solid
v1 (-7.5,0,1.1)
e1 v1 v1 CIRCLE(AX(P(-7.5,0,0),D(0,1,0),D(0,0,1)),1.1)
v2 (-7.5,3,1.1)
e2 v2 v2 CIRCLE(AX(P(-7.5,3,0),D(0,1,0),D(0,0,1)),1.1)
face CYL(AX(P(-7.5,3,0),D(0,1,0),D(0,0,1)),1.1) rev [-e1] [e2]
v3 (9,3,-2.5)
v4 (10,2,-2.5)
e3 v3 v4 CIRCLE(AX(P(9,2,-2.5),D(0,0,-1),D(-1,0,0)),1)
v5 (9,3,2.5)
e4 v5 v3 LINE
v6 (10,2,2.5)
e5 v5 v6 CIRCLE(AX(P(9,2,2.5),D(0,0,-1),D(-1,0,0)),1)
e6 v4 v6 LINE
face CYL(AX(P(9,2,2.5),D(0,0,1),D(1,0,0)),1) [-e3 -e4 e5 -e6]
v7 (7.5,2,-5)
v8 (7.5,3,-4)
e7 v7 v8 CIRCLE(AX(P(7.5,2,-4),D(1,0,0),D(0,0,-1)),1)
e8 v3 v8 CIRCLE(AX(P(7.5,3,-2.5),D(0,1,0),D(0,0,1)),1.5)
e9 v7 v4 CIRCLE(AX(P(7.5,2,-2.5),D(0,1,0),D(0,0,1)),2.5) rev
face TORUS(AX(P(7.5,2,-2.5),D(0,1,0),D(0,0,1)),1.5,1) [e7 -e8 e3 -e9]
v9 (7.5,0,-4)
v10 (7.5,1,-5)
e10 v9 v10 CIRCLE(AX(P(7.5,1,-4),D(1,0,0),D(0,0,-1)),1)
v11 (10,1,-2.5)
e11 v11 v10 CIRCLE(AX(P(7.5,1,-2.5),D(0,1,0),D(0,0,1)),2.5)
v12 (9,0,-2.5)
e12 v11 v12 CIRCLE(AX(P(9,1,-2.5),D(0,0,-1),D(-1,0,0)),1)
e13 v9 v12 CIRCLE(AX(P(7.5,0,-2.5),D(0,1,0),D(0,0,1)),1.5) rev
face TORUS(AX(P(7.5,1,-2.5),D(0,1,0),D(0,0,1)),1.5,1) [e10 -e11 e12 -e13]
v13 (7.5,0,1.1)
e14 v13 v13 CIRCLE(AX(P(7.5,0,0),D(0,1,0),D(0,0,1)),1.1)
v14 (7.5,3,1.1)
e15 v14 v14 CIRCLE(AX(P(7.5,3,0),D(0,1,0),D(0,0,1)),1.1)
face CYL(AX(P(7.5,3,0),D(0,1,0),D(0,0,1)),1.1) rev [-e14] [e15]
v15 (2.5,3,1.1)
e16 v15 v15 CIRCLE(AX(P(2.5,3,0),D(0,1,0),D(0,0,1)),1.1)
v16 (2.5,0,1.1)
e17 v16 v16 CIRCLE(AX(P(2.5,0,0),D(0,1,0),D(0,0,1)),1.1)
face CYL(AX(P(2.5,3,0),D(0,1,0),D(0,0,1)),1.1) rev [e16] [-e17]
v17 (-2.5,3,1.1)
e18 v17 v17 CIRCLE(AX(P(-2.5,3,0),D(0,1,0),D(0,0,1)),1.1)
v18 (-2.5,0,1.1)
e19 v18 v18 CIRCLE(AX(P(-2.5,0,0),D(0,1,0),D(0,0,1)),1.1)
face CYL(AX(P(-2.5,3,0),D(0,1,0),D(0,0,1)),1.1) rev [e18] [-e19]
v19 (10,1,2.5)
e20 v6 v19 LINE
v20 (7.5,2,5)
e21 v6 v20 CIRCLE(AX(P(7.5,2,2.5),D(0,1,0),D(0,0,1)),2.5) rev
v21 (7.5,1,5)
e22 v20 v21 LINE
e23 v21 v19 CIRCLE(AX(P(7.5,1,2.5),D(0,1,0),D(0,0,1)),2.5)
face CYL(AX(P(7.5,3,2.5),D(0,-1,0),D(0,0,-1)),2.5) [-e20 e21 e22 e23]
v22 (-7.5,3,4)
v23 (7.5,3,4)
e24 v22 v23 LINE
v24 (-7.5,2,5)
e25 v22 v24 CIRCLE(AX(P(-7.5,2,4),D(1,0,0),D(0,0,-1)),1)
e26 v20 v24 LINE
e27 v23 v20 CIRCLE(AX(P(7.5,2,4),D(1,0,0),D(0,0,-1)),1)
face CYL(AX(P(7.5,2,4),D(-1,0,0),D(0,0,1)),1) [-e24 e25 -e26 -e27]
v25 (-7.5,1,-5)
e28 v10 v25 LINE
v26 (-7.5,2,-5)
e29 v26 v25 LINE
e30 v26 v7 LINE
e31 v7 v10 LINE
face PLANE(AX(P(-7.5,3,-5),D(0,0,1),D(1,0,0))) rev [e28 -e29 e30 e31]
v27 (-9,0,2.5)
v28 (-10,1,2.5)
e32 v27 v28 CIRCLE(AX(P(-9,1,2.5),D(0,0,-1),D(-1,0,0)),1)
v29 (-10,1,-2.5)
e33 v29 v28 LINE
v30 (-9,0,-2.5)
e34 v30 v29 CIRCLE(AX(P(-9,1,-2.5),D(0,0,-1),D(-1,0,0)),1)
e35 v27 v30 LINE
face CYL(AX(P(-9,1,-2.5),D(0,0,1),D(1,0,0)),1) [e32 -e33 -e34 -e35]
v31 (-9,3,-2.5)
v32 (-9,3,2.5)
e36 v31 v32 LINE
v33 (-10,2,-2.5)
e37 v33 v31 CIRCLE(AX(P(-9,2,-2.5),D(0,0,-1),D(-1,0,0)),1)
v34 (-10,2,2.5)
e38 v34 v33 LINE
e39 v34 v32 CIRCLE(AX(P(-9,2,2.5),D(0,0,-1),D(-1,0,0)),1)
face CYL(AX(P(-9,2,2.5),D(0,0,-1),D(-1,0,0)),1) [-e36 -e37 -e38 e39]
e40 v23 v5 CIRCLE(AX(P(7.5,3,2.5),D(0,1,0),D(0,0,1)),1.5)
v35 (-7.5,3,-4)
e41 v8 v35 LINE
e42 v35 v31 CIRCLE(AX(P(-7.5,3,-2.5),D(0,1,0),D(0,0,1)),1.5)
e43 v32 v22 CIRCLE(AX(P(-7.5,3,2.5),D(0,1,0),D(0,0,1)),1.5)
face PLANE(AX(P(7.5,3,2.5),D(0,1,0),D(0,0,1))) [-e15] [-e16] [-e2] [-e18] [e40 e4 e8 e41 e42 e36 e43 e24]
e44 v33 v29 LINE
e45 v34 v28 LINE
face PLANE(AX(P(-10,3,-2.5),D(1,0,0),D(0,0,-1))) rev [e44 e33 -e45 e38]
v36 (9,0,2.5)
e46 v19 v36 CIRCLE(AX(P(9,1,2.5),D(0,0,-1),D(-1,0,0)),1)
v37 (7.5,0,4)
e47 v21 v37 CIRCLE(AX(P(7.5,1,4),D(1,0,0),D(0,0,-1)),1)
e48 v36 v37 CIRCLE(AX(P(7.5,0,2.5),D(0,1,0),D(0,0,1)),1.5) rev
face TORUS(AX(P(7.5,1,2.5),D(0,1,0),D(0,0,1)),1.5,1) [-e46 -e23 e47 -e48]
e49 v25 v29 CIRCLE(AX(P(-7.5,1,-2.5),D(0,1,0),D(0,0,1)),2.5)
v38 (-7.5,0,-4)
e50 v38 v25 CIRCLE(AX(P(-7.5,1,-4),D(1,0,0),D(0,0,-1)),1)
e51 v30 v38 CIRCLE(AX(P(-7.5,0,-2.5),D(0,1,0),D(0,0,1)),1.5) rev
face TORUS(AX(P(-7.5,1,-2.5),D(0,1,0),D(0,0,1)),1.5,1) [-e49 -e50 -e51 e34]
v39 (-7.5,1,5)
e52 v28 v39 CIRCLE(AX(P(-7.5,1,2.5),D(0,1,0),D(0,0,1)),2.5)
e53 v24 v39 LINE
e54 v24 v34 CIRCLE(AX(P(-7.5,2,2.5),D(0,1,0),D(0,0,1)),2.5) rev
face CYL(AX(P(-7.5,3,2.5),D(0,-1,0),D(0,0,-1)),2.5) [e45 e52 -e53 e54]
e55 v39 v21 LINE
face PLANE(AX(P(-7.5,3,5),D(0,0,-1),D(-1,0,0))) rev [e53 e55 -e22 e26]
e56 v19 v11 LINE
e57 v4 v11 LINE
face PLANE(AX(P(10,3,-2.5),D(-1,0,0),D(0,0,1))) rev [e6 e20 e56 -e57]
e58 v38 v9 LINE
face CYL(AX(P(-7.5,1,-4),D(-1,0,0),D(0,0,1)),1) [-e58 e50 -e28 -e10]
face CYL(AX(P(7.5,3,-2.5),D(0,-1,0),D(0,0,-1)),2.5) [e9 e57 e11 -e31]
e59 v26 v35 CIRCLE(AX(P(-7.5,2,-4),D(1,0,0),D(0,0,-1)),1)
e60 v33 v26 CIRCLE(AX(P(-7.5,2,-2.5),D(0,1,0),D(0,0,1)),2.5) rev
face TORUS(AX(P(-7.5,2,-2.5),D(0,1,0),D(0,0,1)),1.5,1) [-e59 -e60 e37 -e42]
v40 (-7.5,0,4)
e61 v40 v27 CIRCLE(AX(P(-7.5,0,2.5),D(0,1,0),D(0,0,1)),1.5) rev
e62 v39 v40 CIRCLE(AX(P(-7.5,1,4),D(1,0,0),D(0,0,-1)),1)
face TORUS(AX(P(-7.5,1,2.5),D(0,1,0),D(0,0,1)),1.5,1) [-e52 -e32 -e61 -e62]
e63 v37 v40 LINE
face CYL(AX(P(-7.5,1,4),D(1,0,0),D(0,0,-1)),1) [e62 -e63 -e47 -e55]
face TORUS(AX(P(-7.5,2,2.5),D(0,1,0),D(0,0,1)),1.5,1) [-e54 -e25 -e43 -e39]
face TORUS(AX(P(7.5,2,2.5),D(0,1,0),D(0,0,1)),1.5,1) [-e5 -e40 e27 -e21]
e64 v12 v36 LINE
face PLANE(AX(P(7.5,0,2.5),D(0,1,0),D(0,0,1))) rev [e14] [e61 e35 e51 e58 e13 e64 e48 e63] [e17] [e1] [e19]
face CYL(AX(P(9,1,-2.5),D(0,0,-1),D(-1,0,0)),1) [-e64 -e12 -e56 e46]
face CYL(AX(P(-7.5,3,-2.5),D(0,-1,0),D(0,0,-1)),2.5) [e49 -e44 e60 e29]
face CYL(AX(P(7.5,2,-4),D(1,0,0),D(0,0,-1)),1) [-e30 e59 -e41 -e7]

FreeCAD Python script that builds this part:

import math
import FreeCAD as App
import Part
import Sketcher


def edges_at(feature, points):
    """Names of the edges that pass closest to the given points."""
    edges = feature.Shape.Edges
    near = lambda p: min(range(len(edges)), key=lambda i: edges[i].distToShape(Part.Vertex(*p))[0])
    return sorted({f"Edge{near(p) + 1}" for p in points})

doc = App.newDocument("Part")
body = doc.addObject("PartDesign::Body", "Body")

sketch1 = body.newObject("Sketcher::SketchObject", "Sketch")
sketch1.AttachmentSupport = (doc.getObject("XZ_Plane"), [""])
sketch1.MapMode = "FlatFace"
sketch1.addGeometry([
    Part.LineSegment(App.Vector(7.5, -5, 0), App.Vector(-7.5, -5, 0)),
    Part.ArcOfCircle(Part.Circle(App.Vector(-7.5, -2.5, 0), App.Vector(0, 0, 1), 2.5), math.radians(180), math.radians(270)),
    Part.LineSegment(App.Vector(-10, -2.5, 0), App.Vector(-10, 2.5, 0)),
    Part.ArcOfCircle(Part.Circle(App.Vector(-7.5, 2.5, 0), App.Vector(0, 0, 1), 2.5), math.radians(90), math.radians(180)),
    Part.LineSegment(App.Vector(-7.5, 5, 0), App.Vector(7.5, 5, 0)),
    Part.ArcOfCircle(Part.Circle(App.Vector(7.5, 2.5, 0), App.Vector(0, 0, 1), 2.5), math.radians(0), math.radians(90)),
    Part.LineSegment(App.Vector(10, 2.5, 0), App.Vector(10, -2.5, 0)),
    Part.ArcOfCircle(Part.Circle(App.Vector(7.5, -2.5, 0), App.Vector(0, 0, 1), 2.5), math.radians(-90), math.radians(0)),
], False)
sketch1.addConstraint([
    Sketcher.Constraint("Tangent", 0, 2, 1, 2),
    Sketcher.Constraint("Tangent", 1, 1, 2, 1),
    Sketcher.Constraint("Tangent", 2, 2, 3, 2),
    Sketcher.Constraint("Tangent", 3, 1, 4, 1),
    Sketcher.Constraint("Tangent", 4, 2, 5, 2),
    Sketcher.Constraint("Tangent", 5, 1, 6, 1),
    Sketcher.Constraint("Tangent", 6, 2, 7, 2),
    Sketcher.Constraint("Tangent", 7, 1, 0, 1),
    Sketcher.Constraint("Horizontal", 0),
    Sketcher.Constraint("Vertical", 2),
    Sketcher.Constraint("Horizontal", 4),
    Sketcher.Constraint("Vertical", 6),
    Sketcher.Constraint("Equal", 1, 3),
    Sketcher.Constraint("Equal", 3, 5),
    Sketcher.Constraint("Equal", 5, 7),
    Sketcher.Constraint("Symmetric", 1, 3, 5, 3, -1, 1),
    Sketcher.Constraint("Radius", 1, 2.5),
    Sketcher.Constraint("DistanceX", 0, 2, 0, 1, 15.0),
    Sketcher.Constraint("DistanceY", 2, 1, 2, 2, 5.0),
])
pad1 = body.newObject("PartDesign::Pad", "Pad")
pad1.Profile = sketch1
pad1.Length = 3
pad1.Reversed = True

sketch2 = body.newObject("Sketcher::SketchObject", "Sketch001")
sketch2.AttachmentSupport = (doc.getObject("XZ_Plane"), [""])
sketch2.MapMode = "FlatFace"
sketch2.AttachmentOffset = App.Placement(App.Vector(0, 0, -3), App.Rotation())
sketch2.addGeometry([
    Part.Circle(App.Vector(-7.5, 0, 0), App.Vector(0, 0, 1), 1.1),
    Part.Circle(App.Vector(-2.5, 0, 0), App.Vector(0, 0, 1), 1.1),
], False)
sketch2.addConstraint([
    Sketcher.Constraint("Equal", 0, 1),
    Sketcher.Constraint("PointOnObject", 0, 3, -1),
    Sketcher.Constraint("PointOnObject", 1, 3, -1),
    Sketcher.Constraint("Diameter", 0, 2.2),
    Sketcher.Constraint("DistanceX", 0, 3, 1, 3, 5.0),
    Sketcher.Constraint("DistanceX", 0, 3, -1, 1, 7.5),
])
doc.recompute()
hole = body.newObject("PartDesign::Hole", "Hole")
hole.Profile = sketch2
hole.ThreadType = "None"
hole.Diameter = 2.2
hole.DepthType = "ThroughAll"
hole.Reversed = True
doc.recompute()

mirrored = body.newObject("PartDesign::Mirrored", "Mirrored")
mirrored.Originals = [hole]
mirrored.MirrorPlane = (doc.getObject("YZ_Plane"), [""])
body.Tip = mirrored
doc.recompute()

fillet = body.newObject("PartDesign::Fillet", "Fillet")
fillet.Base = (mirrored, edges_at(mirrored, [
    (0, 0, -5),
    (9.268, 0, -4.268),
    (10, 0, 0),
    (9.268, 0, 4.268),
    (9.268, 3, -4.268),
    (0, 3, -5),
    (-9.268, 3, -4.268),
    (-10, 3, 0),
    (-9.268, 3, 4.268),
    (0, 3, 5),
    (9.268, 3, 4.268),
    (0, 0, 5),
    (10, 3, 0),
    (-9.268, 0, 4.268),
    (-10, 0, 0),
    (-9.268, 0, -4.268),
]))
fillet.Radius = 1

doc.recompute()
